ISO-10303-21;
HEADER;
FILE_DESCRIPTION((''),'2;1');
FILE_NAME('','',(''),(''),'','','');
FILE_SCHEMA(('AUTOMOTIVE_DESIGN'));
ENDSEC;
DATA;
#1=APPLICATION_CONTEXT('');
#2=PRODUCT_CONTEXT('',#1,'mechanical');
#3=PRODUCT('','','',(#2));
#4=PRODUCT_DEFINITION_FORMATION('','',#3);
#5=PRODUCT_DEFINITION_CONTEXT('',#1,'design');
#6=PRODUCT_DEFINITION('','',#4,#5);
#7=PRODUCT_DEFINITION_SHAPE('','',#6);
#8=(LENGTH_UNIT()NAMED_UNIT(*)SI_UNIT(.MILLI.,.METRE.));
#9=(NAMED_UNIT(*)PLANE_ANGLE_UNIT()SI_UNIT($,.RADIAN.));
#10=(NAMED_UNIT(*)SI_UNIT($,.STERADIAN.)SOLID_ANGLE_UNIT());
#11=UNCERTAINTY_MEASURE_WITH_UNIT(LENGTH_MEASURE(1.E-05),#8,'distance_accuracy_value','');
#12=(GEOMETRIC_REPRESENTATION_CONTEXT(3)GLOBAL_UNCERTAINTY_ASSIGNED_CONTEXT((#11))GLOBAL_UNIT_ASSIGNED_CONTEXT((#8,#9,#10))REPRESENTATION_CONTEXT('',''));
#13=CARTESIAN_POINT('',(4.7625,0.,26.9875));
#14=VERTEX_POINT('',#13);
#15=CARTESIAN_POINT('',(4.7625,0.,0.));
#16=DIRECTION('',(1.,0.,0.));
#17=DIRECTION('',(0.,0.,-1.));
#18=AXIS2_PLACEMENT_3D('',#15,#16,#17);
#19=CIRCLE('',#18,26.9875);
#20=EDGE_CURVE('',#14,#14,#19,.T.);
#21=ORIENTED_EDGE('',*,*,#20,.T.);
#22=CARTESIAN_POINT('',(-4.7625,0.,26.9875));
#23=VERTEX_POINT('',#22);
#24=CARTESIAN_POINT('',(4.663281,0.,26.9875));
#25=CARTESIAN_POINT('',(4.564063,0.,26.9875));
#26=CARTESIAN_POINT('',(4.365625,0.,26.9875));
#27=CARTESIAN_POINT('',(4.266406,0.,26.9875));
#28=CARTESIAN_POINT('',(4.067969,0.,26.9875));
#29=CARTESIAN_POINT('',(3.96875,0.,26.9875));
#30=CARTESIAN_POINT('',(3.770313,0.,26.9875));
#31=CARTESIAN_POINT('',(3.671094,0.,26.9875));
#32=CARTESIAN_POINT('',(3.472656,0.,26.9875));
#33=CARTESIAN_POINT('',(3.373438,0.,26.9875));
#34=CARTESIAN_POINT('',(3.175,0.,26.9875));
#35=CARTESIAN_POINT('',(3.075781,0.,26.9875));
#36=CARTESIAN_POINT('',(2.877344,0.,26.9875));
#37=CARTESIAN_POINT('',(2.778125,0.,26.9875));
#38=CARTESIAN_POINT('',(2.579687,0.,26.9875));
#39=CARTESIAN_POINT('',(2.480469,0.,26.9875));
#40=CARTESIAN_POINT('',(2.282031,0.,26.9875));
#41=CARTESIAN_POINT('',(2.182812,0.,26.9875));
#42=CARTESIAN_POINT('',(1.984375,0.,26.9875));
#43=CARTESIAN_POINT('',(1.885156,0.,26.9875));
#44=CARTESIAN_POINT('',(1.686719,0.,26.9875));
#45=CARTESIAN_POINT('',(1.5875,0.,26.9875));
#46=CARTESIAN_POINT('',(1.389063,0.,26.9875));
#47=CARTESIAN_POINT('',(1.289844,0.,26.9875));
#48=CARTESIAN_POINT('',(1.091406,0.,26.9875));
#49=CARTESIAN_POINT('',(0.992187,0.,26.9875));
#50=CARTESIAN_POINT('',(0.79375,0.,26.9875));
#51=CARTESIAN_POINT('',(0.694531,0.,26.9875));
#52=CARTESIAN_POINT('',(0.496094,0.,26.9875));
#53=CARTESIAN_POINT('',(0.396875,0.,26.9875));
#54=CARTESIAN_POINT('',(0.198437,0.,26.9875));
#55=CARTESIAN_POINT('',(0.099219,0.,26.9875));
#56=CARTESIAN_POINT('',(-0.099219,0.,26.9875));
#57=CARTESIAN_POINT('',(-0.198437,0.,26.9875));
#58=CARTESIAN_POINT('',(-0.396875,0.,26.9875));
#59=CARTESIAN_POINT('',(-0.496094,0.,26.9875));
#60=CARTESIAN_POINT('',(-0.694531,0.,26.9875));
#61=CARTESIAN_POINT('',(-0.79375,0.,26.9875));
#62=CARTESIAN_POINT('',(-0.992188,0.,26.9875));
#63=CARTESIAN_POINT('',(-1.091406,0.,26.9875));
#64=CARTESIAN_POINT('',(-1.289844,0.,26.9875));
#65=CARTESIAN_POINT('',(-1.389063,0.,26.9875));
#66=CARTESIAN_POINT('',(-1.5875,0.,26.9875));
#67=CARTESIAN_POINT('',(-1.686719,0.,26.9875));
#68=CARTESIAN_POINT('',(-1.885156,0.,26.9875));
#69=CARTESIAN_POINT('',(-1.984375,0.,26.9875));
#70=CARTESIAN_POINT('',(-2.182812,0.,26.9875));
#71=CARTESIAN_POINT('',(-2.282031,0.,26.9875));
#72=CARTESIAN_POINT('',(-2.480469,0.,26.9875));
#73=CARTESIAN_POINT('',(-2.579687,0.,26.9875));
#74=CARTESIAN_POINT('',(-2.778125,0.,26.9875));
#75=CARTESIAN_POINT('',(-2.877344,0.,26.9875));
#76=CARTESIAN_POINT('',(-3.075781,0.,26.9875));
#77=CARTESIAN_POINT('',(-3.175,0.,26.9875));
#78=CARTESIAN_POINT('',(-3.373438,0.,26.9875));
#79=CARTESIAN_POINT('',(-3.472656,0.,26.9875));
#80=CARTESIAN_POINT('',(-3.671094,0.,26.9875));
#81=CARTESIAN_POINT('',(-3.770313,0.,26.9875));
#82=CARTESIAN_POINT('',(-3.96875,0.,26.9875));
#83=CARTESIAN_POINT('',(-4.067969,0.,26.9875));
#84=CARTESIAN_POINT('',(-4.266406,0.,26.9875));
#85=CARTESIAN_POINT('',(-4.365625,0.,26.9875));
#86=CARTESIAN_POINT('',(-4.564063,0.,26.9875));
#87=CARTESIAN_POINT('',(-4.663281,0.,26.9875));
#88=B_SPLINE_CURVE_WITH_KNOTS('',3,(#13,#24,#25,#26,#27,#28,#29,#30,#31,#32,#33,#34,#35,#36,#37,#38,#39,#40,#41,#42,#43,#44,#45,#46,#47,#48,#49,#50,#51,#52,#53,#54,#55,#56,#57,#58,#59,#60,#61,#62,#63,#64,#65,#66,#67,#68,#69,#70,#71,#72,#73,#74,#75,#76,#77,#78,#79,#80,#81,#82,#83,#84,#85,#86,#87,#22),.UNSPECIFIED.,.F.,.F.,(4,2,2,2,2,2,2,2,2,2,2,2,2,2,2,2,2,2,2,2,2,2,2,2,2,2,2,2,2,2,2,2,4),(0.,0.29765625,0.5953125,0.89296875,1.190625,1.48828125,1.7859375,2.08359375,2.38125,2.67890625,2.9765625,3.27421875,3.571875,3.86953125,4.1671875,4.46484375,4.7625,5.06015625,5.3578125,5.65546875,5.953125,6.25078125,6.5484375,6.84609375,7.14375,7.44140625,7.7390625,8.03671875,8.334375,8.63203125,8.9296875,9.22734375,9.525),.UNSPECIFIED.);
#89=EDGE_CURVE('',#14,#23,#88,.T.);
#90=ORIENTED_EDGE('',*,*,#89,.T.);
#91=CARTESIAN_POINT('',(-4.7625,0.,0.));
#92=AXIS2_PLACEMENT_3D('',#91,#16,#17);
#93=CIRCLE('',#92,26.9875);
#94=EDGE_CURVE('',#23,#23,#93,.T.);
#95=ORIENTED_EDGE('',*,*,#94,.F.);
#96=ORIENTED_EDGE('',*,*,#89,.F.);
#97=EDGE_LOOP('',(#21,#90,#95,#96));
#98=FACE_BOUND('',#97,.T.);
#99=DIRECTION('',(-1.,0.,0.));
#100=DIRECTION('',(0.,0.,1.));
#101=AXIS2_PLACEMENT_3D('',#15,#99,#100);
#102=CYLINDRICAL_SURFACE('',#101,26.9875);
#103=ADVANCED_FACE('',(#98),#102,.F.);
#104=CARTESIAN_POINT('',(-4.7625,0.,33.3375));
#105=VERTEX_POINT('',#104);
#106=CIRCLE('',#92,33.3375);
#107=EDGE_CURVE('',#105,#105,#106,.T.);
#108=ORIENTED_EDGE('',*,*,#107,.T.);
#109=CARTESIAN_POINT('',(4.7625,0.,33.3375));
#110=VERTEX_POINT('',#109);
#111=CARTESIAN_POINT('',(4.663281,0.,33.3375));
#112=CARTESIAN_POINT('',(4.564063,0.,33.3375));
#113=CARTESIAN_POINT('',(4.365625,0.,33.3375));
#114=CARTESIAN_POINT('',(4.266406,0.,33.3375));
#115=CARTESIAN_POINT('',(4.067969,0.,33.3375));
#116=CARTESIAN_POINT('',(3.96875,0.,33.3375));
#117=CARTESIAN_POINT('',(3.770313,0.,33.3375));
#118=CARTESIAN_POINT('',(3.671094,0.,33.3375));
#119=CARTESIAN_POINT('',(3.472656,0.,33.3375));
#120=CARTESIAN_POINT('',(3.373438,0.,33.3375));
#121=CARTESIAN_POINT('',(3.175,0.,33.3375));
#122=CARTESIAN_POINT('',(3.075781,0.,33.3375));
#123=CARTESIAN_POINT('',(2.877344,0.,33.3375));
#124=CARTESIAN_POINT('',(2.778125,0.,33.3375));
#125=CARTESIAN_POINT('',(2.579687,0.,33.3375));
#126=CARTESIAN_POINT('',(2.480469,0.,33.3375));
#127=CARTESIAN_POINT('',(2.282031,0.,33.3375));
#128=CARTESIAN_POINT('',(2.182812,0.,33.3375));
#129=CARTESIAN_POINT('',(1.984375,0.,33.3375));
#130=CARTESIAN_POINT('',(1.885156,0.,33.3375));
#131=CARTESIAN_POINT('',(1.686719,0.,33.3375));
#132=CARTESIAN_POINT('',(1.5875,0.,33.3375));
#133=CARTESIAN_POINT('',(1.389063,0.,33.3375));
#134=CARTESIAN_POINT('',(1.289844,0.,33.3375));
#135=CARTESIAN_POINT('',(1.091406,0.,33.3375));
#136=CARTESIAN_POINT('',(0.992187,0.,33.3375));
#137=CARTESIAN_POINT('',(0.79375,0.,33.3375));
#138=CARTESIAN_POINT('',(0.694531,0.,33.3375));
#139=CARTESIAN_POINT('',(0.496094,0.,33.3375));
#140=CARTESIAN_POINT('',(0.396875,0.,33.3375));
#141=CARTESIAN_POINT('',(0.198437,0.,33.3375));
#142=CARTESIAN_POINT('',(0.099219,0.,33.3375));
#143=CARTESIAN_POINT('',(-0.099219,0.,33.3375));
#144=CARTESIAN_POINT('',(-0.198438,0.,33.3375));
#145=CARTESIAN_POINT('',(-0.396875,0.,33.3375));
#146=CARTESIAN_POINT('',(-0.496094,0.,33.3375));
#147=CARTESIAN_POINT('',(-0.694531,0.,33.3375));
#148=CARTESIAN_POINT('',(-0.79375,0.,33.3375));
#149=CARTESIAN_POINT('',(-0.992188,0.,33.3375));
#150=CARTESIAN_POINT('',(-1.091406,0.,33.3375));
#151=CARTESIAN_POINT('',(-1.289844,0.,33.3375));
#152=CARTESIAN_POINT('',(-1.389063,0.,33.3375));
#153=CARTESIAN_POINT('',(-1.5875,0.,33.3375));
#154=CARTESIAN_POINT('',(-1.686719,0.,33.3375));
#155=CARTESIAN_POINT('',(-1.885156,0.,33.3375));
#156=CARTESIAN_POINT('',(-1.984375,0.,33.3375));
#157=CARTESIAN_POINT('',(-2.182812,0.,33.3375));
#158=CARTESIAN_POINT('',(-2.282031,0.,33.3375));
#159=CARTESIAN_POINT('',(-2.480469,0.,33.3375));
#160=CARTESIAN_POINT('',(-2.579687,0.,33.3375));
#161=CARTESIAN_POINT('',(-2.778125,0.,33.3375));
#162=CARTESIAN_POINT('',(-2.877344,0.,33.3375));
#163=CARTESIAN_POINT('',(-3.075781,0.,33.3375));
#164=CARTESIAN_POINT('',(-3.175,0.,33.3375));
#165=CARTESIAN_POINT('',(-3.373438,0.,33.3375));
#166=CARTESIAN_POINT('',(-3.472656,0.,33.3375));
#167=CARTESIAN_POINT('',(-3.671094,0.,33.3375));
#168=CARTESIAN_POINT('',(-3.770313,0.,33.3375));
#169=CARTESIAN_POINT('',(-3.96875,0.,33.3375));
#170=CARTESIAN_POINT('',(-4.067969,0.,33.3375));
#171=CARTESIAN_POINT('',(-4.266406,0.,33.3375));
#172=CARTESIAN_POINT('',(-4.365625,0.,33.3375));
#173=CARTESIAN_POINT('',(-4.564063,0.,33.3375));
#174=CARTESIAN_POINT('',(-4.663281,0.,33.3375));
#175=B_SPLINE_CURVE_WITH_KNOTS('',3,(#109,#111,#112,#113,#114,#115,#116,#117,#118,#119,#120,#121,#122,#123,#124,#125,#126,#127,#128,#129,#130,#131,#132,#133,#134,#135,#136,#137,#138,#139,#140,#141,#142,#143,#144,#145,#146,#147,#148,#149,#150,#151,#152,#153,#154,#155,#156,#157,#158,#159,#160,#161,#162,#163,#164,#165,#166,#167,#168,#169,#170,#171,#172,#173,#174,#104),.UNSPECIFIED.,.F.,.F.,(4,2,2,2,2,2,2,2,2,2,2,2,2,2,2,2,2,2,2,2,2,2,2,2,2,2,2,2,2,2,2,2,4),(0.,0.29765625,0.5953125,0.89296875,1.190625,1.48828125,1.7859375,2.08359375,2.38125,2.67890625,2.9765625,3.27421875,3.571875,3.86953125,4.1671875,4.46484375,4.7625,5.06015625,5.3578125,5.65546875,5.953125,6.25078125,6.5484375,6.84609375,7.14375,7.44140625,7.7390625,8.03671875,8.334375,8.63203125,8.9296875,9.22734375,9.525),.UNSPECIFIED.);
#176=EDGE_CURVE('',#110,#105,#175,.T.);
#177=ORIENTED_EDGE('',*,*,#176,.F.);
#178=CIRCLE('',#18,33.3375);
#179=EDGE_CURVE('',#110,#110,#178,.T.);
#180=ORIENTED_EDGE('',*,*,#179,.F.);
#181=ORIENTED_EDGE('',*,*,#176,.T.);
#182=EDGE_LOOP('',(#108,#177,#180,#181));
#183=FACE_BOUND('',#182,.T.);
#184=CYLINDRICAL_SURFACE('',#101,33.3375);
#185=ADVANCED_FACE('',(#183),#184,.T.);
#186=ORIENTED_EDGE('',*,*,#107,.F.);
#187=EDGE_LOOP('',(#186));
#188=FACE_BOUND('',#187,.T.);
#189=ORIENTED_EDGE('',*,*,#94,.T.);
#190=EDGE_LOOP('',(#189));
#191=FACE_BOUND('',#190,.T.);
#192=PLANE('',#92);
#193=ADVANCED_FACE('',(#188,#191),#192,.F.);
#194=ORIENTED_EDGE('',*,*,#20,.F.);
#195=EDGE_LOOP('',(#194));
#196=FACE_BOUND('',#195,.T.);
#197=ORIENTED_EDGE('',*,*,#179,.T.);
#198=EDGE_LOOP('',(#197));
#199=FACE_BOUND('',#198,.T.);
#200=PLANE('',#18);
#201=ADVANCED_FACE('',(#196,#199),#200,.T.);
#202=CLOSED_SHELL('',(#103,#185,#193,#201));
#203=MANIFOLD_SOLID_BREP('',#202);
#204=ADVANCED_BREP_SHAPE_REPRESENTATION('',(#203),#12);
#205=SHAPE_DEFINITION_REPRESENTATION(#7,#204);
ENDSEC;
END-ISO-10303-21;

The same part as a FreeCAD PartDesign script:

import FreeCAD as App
import Part
import Sketcher

V = App.Vector
Q = App.Units.Quantity

doc = App.newDocument("Part")
body = doc.addObject("PartDesign::Body", "Body")

sketch1 = body.newObject("Sketcher::SketchObject", "Sketch")
sketch1.AttachmentSupport = (doc.getObject("YZ_Plane"), [""])
sketch1.MapMode = "FlatFace"
sketch1.addGeometry([
    Part.Circle(V(0, 0, 0), V(0, 0, 1), 33),
    Part.Circle(V(0, 0, 0), V(0, 0, 1), 27),
], False)
sketch1.addConstraint([
    Sketcher.Constraint("Coincident", 0, 3, -1, 1),
    Sketcher.Constraint("Coincident", 1, 3, -1, 1),
    Sketcher.Constraint("Diameter", 0, Q("2.625 in")),
    Sketcher.Constraint("Diameter", 1, Q("2.125 in")),
])
pad1 = body.newObject("PartDesign::Pad", "Pad")
pad1.Profile = sketch1
pad1.Length = Q("0.375 in")
pad1.Midplane = True

doc.recompute()
